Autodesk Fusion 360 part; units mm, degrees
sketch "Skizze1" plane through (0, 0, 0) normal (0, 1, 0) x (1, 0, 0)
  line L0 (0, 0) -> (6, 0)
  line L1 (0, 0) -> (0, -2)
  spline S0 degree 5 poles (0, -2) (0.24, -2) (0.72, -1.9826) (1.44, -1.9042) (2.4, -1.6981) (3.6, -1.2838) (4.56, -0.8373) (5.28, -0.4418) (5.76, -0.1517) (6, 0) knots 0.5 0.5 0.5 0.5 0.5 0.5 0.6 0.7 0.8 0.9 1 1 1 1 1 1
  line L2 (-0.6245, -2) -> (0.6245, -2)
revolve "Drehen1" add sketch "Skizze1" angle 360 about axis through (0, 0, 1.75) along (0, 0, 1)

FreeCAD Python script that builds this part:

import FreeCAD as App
import Part
import Sketcher
from FreeCAD import Vector

doc = App.newDocument("Part")
body = doc.addObject("PartDesign::Body", "Body")

sketch1 = body.newObject("Sketcher::SketchObject", "Sketch")
sketch1.AttachmentSupport = (doc.getObject("XZ_Plane"), [""])
sketch1.MapMode = "FlatFace"
sketch1.addGeometry(Part.LineSegment(Vector(6, 0, 0), Vector(0, 0, 0)), False)
sketch1.addGeometry(Part.LineSegment(Vector(0, 0, 0), Vector(0, 2, 0)), False)
sketch1.addGeometry(Part.BSplineCurve([Vector(0, 2, 0), Vector(0.24, 2, 0), Vector(0.72, 1.9826, 0), Vector(1.44, 1.9042, 0), Vector(2.4, 1.6981, 0), Vector(3.6, 1.2838, 0), Vector(4.56, 0.8373, 0), Vector(5.28, 0.4418, 0), Vector(5.76, 0.1517, 0), Vector(6, 0, 0)], [6, 1, 1, 1, 1, 6], [0.5, 0.6, 0.7, 0.8, 0.9, 1], False, 5, [1, 1, 1, 1, 1, 1, 1, 1, 1, 1], False), False)
sketch1.addConstraint(Sketcher.Constraint("Block", 2))
sketch1.addConstraint(Sketcher.Constraint("Coincident", 0, 2, 1, 1))
sketch1.addConstraint(Sketcher.Constraint("Coincident", 1, 2, 2, 1))
sketch1.addConstraint(Sketcher.Constraint("Coincident", 2, 2, 0, 1))
sketch1.addConstraint(Sketcher.Constraint("Horizontal", 0))
sketch1.addConstraint(Sketcher.Constraint("Vertical", 1))
revolution = body.newObject("PartDesign::Revolution", "Revolution")
revolution.Profile = sketch1
revolution.ReferenceAxis = (sketch1, ["V_Axis"])
revolution.Angle = 360

doc.recompute()
